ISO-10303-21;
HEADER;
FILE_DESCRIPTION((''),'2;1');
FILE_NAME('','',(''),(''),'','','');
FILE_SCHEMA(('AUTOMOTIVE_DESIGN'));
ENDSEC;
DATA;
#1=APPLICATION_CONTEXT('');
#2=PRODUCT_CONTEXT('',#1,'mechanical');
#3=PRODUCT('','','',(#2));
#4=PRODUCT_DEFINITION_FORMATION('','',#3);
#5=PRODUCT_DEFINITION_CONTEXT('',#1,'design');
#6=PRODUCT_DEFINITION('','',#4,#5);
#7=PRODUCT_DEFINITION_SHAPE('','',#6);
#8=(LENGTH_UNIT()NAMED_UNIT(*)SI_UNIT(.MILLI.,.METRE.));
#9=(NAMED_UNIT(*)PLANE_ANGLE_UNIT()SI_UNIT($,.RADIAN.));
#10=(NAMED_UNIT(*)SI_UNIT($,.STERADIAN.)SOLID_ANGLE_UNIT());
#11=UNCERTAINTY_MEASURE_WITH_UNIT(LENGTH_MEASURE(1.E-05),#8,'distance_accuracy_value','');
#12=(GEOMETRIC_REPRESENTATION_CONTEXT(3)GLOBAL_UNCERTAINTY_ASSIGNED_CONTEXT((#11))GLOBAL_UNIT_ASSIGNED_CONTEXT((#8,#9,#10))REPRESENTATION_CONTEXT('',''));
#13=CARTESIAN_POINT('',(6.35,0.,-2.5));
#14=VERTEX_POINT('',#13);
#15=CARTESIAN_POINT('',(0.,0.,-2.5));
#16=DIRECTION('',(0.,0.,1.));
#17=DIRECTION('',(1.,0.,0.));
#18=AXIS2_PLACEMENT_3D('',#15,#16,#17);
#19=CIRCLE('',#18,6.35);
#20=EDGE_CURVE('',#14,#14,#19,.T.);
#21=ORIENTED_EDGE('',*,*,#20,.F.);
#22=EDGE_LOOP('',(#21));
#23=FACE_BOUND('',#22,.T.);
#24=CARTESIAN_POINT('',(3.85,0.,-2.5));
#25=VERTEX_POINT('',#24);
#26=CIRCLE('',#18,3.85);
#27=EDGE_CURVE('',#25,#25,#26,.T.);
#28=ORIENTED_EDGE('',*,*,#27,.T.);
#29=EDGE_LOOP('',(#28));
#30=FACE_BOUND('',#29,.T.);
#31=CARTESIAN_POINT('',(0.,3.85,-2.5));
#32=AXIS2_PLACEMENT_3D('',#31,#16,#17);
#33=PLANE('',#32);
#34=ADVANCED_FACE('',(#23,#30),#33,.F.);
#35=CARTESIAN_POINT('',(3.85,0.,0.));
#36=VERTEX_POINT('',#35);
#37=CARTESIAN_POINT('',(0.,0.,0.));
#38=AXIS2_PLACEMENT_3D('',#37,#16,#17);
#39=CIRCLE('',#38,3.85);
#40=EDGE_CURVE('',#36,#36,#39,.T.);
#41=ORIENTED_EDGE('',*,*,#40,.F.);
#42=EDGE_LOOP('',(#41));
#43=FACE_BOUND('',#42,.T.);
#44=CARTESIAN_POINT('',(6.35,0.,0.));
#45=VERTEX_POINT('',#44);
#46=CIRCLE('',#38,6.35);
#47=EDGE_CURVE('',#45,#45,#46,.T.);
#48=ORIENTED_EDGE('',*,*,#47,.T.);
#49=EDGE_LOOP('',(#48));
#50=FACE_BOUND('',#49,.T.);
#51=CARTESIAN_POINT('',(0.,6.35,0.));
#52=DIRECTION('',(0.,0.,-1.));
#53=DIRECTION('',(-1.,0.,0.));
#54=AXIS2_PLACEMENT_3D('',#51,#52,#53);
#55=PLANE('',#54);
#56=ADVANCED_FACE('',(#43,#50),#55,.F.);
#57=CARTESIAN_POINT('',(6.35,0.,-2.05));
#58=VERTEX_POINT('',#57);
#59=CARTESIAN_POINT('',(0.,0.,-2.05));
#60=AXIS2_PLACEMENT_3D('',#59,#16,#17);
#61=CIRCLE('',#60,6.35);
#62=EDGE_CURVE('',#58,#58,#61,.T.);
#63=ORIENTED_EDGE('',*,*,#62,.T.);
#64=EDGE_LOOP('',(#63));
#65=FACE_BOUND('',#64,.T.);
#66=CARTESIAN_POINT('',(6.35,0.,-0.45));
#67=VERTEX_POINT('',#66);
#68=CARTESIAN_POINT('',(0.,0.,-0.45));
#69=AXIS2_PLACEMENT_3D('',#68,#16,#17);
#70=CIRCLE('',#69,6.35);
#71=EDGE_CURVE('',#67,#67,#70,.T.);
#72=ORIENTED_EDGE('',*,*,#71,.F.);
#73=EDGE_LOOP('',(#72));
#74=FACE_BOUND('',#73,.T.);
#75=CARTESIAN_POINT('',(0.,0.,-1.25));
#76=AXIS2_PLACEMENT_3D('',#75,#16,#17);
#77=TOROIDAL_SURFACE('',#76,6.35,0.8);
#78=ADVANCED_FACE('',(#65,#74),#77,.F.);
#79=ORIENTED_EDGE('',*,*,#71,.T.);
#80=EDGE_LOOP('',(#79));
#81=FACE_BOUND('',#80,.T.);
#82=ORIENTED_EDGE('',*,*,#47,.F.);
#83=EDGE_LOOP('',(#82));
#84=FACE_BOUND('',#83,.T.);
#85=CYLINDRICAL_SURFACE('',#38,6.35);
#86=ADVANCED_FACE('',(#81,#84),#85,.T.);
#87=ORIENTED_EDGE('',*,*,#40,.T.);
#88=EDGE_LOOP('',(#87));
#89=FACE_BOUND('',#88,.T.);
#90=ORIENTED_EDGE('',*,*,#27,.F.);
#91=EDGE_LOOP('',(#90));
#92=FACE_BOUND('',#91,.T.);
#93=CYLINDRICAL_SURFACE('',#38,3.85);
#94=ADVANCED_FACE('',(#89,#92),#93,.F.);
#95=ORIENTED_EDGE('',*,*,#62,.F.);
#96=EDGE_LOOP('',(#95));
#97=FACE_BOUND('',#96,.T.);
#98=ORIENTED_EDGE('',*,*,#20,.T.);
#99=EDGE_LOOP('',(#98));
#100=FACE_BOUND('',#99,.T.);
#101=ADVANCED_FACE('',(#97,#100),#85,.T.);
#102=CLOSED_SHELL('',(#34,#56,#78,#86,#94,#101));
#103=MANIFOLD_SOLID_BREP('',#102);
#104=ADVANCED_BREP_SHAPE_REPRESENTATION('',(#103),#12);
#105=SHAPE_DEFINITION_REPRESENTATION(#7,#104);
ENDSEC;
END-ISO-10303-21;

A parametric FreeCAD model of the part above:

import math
import FreeCAD as App
import Part
import Sketcher
from FreeCAD import Vector
Q = App.Units.Quantity

doc = App.newDocument("Part")
body = doc.addObject("PartDesign::Body", "Body")

# Sketch on YZ plane
sketch1 = body.newObject("Sketcher::SketchObject", "Sketch")
sketch1.AttachmentSupport = (doc.getObject("YZ_Plane"), [""])
sketch1.MapMode = "FlatFace"
sketch1.addGeometry(Part.LineSegment(Vector(3.85, 0, 0), Vector(3.85, -2.5, 0)), False)
sketch1.addGeometry(Part.LineSegment(Vector(3.85, -2.5, 0), Vector(6.35, -2.5, 0)), False)
sketch1.addGeometry(Part.LineSegment(Vector(6.35, -2.5, 0), Vector(6.35, -2.05, 0)), False)
sketch1.addGeometry(Part.ArcOfCircle(Part.Circle(Vector(6.35, -1.25, 0), Vector(0, 0, 1), 0.8), math.radians(90), math.radians(270)), False)
sketch1.addGeometry(Part.LineSegment(Vector(6.35, -0.45, 0), Vector(6.35, 0, 0)), False)
sketch1.addGeometry(Part.LineSegment(Vector(6.35, 0, 0), Vector(3.85, 0, 0)), False)
sketch1.addConstraint(Sketcher.Constraint("Coincident", 0, 2, 1, 1))
sketch1.addConstraint(Sketcher.Constraint("Coincident", 1, 2, 2, 1))
sketch1.addConstraint(Sketcher.Constraint("Coincident", 2, 2, 3, 2))
sketch1.addConstraint(Sketcher.Constraint("Coincident", 3, 1, 4, 1))
sketch1.addConstraint(Sketcher.Constraint("Coincident", 4, 2, 5, 1))
sketch1.addConstraint(Sketcher.Constraint("Coincident", 5, 2, 0, 1))
sketch1.addConstraint(Sketcher.Constraint("Vertical", 0))
sketch1.addConstraint(Sketcher.Constraint("Horizontal", 1))
sketch1.addConstraint(Sketcher.Constraint("Vertical", 2))
sketch1.addConstraint(Sketcher.Constraint("Vertical", 4))
sketch1.addConstraint(Sketcher.Constraint("Horizontal", 5))
sketch1.addConstraint(Sketcher.Constraint("PointOnObject", 4, 2, -1))
sketch1.addConstraint(Sketcher.Constraint("Vertical", 3, 3, 1, 2))
sketch1.addConstraint(Sketcher.Constraint("Vertical", 2, 2, 3, 1))
sketch1.addConstraint(Sketcher.Constraint("Equal", 5, 0))
sketch1.addConstraint(Sketcher.Constraint("Equal", 2, 4))
sketch1.addConstraint(Sketcher.Constraint("Radius", 3, Q("0.8 mm")))
sketch1.addConstraint(Sketcher.Constraint("DistanceX", 1, 1, 1, 2, Q("2.5 mm")))
sketch1.addConstraint(Sketcher.Constraint("DistanceX", -1, 1, 3, 3, Q("6.35 mm")))
revolution = body.newObject("PartDesign::Revolution", "Revolution")
revolution.Profile = sketch1
revolution.ReferenceAxis = (sketch1, ["V_Axis"])
revolution.Angle = 360

doc.recompute()
